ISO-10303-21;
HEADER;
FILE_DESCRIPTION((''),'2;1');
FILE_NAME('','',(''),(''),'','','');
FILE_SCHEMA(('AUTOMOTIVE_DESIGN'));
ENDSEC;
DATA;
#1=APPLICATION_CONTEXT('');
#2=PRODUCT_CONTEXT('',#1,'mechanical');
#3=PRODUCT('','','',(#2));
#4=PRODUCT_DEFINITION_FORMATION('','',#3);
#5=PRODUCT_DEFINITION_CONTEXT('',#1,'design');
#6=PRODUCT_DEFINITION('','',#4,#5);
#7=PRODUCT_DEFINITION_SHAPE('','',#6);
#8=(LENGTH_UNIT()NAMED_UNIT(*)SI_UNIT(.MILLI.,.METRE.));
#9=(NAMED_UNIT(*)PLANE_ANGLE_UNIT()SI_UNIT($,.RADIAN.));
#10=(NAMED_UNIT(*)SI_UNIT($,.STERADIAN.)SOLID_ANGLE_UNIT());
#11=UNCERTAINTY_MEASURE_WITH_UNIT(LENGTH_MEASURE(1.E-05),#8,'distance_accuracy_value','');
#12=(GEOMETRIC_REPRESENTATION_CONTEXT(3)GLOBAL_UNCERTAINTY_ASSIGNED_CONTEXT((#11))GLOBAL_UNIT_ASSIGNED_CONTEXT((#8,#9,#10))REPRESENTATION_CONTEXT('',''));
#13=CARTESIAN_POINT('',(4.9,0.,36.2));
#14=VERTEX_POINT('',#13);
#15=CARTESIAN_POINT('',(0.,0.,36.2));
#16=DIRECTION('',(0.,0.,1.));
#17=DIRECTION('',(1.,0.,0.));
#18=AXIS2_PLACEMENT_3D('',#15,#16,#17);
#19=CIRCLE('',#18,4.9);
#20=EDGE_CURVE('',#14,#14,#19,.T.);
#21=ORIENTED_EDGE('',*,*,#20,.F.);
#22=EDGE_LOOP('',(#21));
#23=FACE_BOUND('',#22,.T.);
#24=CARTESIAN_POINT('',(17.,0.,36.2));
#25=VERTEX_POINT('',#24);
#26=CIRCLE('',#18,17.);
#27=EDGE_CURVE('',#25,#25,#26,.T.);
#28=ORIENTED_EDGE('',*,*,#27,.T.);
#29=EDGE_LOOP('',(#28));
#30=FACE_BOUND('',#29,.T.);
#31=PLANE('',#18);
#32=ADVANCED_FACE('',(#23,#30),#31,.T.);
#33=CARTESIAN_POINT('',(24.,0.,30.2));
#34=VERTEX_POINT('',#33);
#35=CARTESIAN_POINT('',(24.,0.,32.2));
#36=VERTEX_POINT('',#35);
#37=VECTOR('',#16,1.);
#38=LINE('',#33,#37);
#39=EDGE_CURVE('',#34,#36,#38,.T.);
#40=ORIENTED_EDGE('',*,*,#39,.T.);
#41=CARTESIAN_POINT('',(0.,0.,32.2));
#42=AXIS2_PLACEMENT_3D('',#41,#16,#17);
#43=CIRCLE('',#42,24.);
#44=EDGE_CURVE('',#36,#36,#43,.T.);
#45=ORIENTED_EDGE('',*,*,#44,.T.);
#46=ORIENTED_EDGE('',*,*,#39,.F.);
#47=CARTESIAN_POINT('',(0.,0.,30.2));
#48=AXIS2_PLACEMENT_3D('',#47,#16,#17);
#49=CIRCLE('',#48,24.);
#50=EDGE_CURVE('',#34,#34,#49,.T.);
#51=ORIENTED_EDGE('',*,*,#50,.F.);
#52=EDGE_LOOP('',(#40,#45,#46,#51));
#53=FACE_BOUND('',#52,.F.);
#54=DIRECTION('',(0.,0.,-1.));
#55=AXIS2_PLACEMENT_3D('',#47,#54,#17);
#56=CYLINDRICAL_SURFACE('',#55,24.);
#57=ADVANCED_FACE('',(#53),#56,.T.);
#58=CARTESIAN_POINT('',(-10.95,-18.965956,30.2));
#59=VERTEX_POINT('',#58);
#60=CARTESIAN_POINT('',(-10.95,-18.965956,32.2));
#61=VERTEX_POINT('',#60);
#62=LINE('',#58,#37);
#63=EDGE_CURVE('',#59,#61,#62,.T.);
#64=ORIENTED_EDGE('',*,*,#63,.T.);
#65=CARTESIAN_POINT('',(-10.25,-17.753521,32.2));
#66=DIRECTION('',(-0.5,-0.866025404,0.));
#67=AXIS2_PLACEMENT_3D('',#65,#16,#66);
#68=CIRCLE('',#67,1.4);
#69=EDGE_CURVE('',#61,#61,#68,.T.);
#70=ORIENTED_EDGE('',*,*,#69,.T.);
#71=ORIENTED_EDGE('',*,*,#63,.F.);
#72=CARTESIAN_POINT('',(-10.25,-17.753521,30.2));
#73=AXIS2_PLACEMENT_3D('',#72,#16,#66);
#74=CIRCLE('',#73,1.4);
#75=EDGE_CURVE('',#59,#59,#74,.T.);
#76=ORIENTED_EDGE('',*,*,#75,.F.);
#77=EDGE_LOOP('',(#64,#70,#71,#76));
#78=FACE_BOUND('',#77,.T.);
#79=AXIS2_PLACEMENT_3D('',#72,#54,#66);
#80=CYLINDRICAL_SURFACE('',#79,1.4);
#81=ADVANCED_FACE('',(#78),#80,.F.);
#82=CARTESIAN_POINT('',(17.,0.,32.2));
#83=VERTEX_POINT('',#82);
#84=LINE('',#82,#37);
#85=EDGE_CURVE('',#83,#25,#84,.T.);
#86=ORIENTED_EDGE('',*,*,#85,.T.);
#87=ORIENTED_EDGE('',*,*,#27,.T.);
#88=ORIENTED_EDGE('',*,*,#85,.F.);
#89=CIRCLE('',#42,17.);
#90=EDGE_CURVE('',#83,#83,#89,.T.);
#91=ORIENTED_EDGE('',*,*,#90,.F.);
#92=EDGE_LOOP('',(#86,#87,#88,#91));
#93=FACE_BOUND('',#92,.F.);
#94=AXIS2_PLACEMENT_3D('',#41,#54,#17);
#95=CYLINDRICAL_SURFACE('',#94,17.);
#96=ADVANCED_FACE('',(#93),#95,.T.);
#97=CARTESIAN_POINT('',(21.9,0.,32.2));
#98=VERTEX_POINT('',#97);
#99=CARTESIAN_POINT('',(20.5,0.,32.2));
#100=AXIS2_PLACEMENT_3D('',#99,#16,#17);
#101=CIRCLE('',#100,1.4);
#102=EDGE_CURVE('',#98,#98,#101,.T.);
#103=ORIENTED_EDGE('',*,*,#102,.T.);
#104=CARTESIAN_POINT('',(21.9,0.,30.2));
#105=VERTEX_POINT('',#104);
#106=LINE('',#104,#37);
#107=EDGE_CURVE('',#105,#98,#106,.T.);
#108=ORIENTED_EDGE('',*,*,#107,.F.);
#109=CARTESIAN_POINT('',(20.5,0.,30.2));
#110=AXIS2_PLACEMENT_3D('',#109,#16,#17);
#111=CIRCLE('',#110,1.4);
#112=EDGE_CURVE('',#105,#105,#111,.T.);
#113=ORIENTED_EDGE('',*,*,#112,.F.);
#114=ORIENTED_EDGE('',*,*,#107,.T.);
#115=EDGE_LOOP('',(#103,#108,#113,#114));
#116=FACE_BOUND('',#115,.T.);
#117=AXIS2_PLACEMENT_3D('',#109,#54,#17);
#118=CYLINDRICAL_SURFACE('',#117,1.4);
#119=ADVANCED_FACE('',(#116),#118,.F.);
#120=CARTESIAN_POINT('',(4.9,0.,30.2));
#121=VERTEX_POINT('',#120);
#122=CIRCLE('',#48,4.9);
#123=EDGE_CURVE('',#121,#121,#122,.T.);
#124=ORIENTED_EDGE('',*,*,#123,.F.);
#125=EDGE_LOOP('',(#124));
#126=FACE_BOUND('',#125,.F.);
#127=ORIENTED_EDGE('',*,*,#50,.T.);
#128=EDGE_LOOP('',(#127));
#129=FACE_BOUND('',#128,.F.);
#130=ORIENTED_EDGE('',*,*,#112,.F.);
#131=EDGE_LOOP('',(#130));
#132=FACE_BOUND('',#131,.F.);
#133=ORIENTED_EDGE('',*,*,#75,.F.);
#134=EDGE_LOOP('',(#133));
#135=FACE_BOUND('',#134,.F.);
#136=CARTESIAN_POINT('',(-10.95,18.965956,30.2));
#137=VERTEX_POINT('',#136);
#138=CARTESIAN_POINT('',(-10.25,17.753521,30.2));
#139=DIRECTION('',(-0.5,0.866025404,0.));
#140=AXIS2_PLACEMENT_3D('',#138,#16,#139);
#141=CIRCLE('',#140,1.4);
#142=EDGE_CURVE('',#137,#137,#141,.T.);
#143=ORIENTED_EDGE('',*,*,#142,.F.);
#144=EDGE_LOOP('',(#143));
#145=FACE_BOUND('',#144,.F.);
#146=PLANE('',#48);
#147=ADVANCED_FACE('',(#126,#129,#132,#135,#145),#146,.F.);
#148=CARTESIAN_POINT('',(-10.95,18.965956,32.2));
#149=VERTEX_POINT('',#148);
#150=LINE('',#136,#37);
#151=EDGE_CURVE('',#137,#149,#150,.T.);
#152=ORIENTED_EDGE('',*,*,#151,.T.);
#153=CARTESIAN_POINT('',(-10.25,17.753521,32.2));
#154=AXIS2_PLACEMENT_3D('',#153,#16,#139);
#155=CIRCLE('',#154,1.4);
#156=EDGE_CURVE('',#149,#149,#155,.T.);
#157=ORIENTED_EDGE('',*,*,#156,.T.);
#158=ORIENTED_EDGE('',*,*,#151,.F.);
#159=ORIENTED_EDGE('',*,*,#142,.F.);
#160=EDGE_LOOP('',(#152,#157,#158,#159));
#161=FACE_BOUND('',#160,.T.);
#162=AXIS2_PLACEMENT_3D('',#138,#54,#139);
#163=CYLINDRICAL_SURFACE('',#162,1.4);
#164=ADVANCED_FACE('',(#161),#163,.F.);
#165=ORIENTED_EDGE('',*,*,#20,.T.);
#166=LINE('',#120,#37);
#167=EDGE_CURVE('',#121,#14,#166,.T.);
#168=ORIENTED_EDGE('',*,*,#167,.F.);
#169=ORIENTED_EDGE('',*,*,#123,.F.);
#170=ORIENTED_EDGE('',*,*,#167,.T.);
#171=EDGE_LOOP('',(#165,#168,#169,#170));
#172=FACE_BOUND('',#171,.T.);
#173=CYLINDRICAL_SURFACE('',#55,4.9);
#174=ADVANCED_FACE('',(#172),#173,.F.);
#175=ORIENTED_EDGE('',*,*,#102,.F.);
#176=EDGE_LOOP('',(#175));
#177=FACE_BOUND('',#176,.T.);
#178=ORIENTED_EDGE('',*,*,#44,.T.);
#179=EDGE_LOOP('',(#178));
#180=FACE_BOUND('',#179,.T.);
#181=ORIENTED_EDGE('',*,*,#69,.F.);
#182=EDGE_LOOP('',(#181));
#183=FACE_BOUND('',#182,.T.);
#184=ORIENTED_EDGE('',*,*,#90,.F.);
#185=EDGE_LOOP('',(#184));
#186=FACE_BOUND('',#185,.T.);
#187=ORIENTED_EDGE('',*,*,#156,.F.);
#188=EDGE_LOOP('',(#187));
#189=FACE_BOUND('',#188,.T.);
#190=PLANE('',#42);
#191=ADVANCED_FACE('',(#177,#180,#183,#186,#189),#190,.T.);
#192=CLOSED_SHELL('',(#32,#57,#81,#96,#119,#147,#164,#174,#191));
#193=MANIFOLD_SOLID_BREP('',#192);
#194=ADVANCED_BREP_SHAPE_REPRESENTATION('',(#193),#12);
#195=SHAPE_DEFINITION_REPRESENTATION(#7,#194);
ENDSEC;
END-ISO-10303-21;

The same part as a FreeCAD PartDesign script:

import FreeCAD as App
import Part
import Sketcher
from FreeCAD import Vector

doc = App.newDocument("Part")
body = doc.addObject("PartDesign::Body", "Body")

# Sketch on XY plane
sketch1 = body.newObject("Sketcher::SketchObject", "Sketch")
sketch1.AttachmentSupport = (doc.getObject("XY_Plane"), [""])
sketch1.MapMode = "FlatFace"
sketch1.addGeometry(Part.Circle(Vector(20.5, 0, 0), Vector(0, 0, 1), 1.4), False)
sketch1.addConstraint([
    Sketcher.Constraint("PointOnObject", 0, 3, -1),
    Sketcher.Constraint("Diameter", 0, 2.8),
    Sketcher.Constraint("DistanceX", -1, 1, 0, 3, 20.5),
])
pad1 = body.newObject("PartDesign::Pad", "Pad")
pad1.Profile = sketch1
pad1.Length = 2
body2 = doc.addObject("PartDesign::Body", "Body001")
body2.AllowCompound = True
doc.recompute()

body2.BaseFeature = body
doc.recompute()

body3 = doc.addObject("PartDesign::Body", "Body002")
body3.BaseFeature = body
body3.Placement = App.Placement(Vector(0, 0, 0), App.Rotation(Vector(0, 0, 1), 120))
boolean = body2.newObject("PartDesign::Boolean", "Boolean")
boolean.Type = "Fuse"
boolean.addObjects([body3])
doc.recompute()

body.Placement = App.Placement(Vector(0, 0, 0), App.Rotation(Vector(0, 0, 1), 240))
boolean2 = body2.newObject("PartDesign::Boolean", "Boolean001")
boolean2.Type = "Fuse"
boolean2.addObjects([body])
body4 = doc.addObject("PartDesign::Body", "Body003")

# Sketch on XY plane
sketch2 = body4.newObject("Sketcher::SketchObject", "Sketch001")
sketch2.AttachmentSupport = (doc.getObject("XY_Plane003"), [""])
sketch2.MapMode = "FlatFace"
sketch2.addGeometry(Part.Circle(Vector(0, 0, 0), Vector(0, 0, 1), 4.9), False)
sketch2.addConstraint([
    Sketcher.Constraint("Coincident", 0, 3, -1, 1),
    Sketcher.Constraint("Diameter", 0, 9.8),
])
pad2 = body4.newObject("PartDesign::Pad", "Pad001")
pad2.Profile = sketch2
pad2.Length = 6
body5 = doc.addObject("PartDesign::Body", "Body004")

# Sketch on XY plane
sketch3 = body5.newObject("Sketcher::SketchObject", "Sketch002")
sketch3.AttachmentSupport = (doc.getObject("XY_Plane004"), [""])
sketch3.MapMode = "FlatFace"
sketch3.addGeometry(Part.Circle(Vector(0, 0, 0), Vector(0, 0, 1), 24), False)
sketch3.addConstraint([
    Sketcher.Constraint("Coincident", 0, 3, -1, 1),
    Sketcher.Constraint("Diameter", 0, 48.0),
])
pad3 = body5.newObject("PartDesign::Pad", "Pad002")
pad3.Profile = sketch3
pad3.Length = 2
body6 = doc.addObject("PartDesign::Body", "Body005")

# Sketch on XY plane
sketch4 = body6.newObject("Sketcher::SketchObject", "Sketch003")
sketch4.AttachmentSupport = (doc.getObject("XY_Plane005"), [""])
sketch4.MapMode = "FlatFace"
sketch4.AttachmentOffset = App.Placement(Vector(0, 0, 2), App.Rotation())
sketch4.addGeometry(Part.Circle(Vector(0, 0, 0), Vector(0, 0, 1), 17), False)
sketch4.addConstraint([
    Sketcher.Constraint("Coincident", 0, 3, -1, 1),
    Sketcher.Constraint("Diameter", 0, 34.0),
])
pad4 = body6.newObject("PartDesign::Pad", "Pad003")
pad4.Profile = sketch4
pad4.Length = 4
doc.recompute()

boolean3 = body6.newObject("PartDesign::Boolean", "Boolean002")
boolean3.Type = "Fuse"
boolean3.addObjects([body5])
doc.recompute()

boolean4 = body6.newObject("PartDesign::Boolean", "Boolean003")
boolean4.Type = "Cut"
boolean4.addObjects([body4])
doc.recompute()

boolean5 = body6.newObject("PartDesign::Boolean", "Boolean004")
boolean5.Type = "Cut"
boolean5.addObjects([body2])
body7 = doc.addObject("PartDesign::Body", "Body006")
doc.recompute()

body6.Placement = App.Placement(Vector(0, 0, 30.2), App.Rotation(Vector(0, 0, 1), 0))
boolean6 = body7.newObject("PartDesign::Boolean", "Boolean005")
boolean6.Type = "Fuse"
boolean6.addObjects([body6])

doc.recompute()
